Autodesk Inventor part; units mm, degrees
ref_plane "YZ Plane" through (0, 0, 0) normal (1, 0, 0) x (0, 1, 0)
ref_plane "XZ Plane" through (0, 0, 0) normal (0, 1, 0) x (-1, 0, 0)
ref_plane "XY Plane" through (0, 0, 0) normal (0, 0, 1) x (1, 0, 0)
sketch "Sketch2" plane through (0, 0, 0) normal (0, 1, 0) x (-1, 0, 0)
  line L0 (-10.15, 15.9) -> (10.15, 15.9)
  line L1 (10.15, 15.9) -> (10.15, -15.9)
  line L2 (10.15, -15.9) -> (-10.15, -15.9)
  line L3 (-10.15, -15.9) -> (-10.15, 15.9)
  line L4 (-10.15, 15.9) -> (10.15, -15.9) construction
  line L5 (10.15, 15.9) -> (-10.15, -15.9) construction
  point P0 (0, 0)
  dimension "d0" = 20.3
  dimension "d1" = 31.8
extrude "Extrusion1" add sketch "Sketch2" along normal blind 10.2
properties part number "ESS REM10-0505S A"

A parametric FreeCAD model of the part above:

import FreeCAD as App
import Part
import Sketcher
from FreeCAD import Vector
Q = App.Units.Quantity


def add_polygon(sketch, points):
    """Adds a closed chain of lines whose ends are joined by coincident constraints."""
    first, n = sketch.GeometryCount, len(points)
    for a, b in zip(points, points[1:] + points[:1]):
        sketch.addGeometry(Part.LineSegment(App.Vector(*a, 0), App.Vector(*b, 0)), False)
    for i in range(n):
        sketch.addConstraint(Sketcher.Constraint("Coincident", first + i, 2, first + (i + 1) % n, 1))

doc = App.newDocument("Part")
params = doc.addObject("Spreadsheet::Sheet", "Params")
for row, (alias, value) in enumerate([
    ("sketch1_width", "20.3 mm"),
    ("sketch1_height", "31.8 mm"),
    ("pad1_length", "10.2 mm"),
], start=1):
    params.set(f"A{row}", alias)
    params.set(f"B{row}", "=" + value)
    params.setAlias(f"B{row}", alias)

body = doc.addObject("PartDesign::Body", "Body")

sketch1 = body.newObject("Sketcher::SketchObject", "Sketch")
sketch1.AttachmentSupport = (doc.getObject("XZ_Plane"), [""])
sketch1.MapMode = "FlatFace"
add_polygon(sketch1, [(-10, 16), (10, 16), (10, -16), (-10, -16)])
sketch1.addConstraint([
    Sketcher.Constraint("Horizontal", 0),
    Sketcher.Constraint("Vertical", 1),
    Sketcher.Constraint("Horizontal", 2),
    Sketcher.Constraint("Vertical", 3),
    Sketcher.Constraint("Symmetric", 0, 2, 2, 2, -1, 1),
    Sketcher.Constraint("DistanceX", 0, 1, 0, 2, Q("20.3 mm")),
    Sketcher.Constraint("DistanceY", 1, 2, 1, 1, Q("31.8 mm")),
])
sketch1.setExpression("Constraints[9]", "Params.sketch1_width")
sketch1.setExpression("Constraints[10]", "Params.sketch1_height")
pad1 = body.newObject("PartDesign::Pad", "Pad")
pad1.Profile = sketch1
pad1.setExpression("Length", "Params.pad1_length")
pad1.Reversed = True

doc.recompute()
